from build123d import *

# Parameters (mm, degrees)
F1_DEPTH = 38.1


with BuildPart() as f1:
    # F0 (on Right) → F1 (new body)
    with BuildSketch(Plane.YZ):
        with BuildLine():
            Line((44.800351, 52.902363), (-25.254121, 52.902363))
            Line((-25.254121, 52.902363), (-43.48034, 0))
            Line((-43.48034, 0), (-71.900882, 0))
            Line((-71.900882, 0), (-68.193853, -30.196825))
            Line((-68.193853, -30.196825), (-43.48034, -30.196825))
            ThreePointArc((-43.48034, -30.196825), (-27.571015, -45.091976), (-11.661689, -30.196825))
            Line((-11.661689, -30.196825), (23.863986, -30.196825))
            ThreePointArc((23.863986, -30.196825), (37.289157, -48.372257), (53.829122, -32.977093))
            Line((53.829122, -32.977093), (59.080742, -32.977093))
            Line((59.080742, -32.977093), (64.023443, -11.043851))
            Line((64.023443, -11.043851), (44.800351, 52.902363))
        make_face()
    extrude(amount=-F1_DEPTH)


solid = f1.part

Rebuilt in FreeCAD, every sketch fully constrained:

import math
import FreeCAD as App
import Part
import Sketcher

V = App.Vector
Q = App.Units.Quantity

doc = App.newDocument("Part")
body = doc.addObject("PartDesign::Body", "Body")

sketch1 = body.newObject("Sketcher::SketchObject", "Sketch")
sketch1.AttachmentSupport = (doc.getObject("YZ_Plane"), [""])
sketch1.MapMode = "FlatFace"
sketch1.addGeometry(Part.LineSegment(V(45, 53, 0), V(-25, 53, 0)), False)
sketch1.addGeometry(Part.LineSegment(V(-25, 53, 0), V(-43, 0, 0)), False)
sketch1.addGeometry(Part.LineSegment(V(-43, 0, 0), V(-72, 0, 0)), False)
sketch1.addGeometry(Part.LineSegment(V(-72, 0, 0), V(-68, -30, 0)), False)
sketch1.addGeometry(Part.LineSegment(V(-68, -30, 0), V(-43, -30, 0)), False)
sketch1.addGeometry(Part.ArcOfCircle(Part.Circle(V(-28, -29, 0), V(0, 0, 1), 16), math.radians(-176), math.radians(-4)), False)
sketch1.addGeometry(Part.LineSegment(V(-12, -30, 0), V(24, -30, 0)), False)
sketch1.addGeometry(Part.ArcOfCircle(Part.Circle(V(39, -33, 0), V(0, 0, 1), 15), math.radians(168), math.radians(361)), False)
sketch1.addGeometry(Part.LineSegment(V(54, -33, 0), V(59, -33, 0)), False)
sketch1.addGeometry(Part.LineSegment(V(59, -33, 0), V(64, -11, 0)), False)
sketch1.addGeometry(Part.LineSegment(V(64, -11, 0), V(45, 53, 0)), False)
sketch1.addConstraint(Sketcher.Constraint("Coincident", 0, 2, 1, 1))
sketch1.addConstraint(Sketcher.Constraint("Coincident", 1, 2, 2, 1))
sketch1.addConstraint(Sketcher.Constraint("Coincident", 2, 2, 3, 1))
sketch1.addConstraint(Sketcher.Constraint("Coincident", 3, 2, 4, 1))
sketch1.addConstraint(Sketcher.Constraint("Coincident", 4, 2, 5, 1))
sketch1.addConstraint(Sketcher.Constraint("Coincident", 5, 2, 6, 1))
sketch1.addConstraint(Sketcher.Constraint("Coincident", 6, 2, 7, 1))
sketch1.addConstraint(Sketcher.Constraint("Coincident", 7, 2, 8, 1))
sketch1.addConstraint(Sketcher.Constraint("Coincident", 8, 2, 9, 1))
sketch1.addConstraint(Sketcher.Constraint("Coincident", 9, 2, 10, 1))
sketch1.addConstraint(Sketcher.Constraint("Coincident", 10, 2, 0, 1))
sketch1.addConstraint(Sketcher.Constraint("Horizontal", 0))
sketch1.addConstraint(Sketcher.Constraint("Horizontal", 2))
sketch1.addConstraint(Sketcher.Constraint("Horizontal", 4))
sketch1.addConstraint(Sketcher.Constraint("Horizontal", 6))
sketch1.addConstraint(Sketcher.Constraint("Horizontal", 8))
sketch1.addConstraint(Sketcher.Constraint("PointOnObject", 1, 2, -1))
sketch1.addConstraint(Sketcher.Constraint("Horizontal", 4, 2, 5, 2))
sketch1.addConstraint(Sketcher.Constraint("Vertical", 1, 2, 4, 2))
sketch1.addConstraint(Sketcher.Constraint("Radius", 5, 15.943852))
sketch1.addConstraint(Sketcher.Constraint("DistanceX", 5, 3, 6, 2, Q("2.025 in")))
sketch1.addConstraint(Sketcher.Constraint("Radius", 7, 15.144142))
sketch1.addConstraint(Sketcher.Constraint("DistanceX", 2, 2, 2, 1, 28.420542))
sketch1.addConstraint(Sketcher.Constraint("DistanceX", 8, 1, 8, 2, 5.25162))
sketch1.addConstraint(Sketcher.Constraint("DistanceY", 3, 2, 5, 3, 1.048701))
sketch1.addConstraint(Sketcher.Constraint("DistanceX", 8, 2, 9, 2, 4.942701))
sketch1.addConstraint(Sketcher.Constraint("Distance", 9, 22.483269))
sketch1.addConstraint(Sketcher.Constraint("Distance", 10, 66.77309))
sketch1.addConstraint(Sketcher.Constraint("DistanceX", 0, 2, 0, 1, 70.054472))
sketch1.addConstraint(Sketcher.Constraint("DistanceX", 4, 1, 4, 2, 24.713513))
sketch1.addConstraint(Sketcher.Constraint("DistanceX", 0, 2, -1, 1, 25.254121))
sketch1.addConstraint(Sketcher.Constraint("DistanceX", 1, 2, -1, 1, 43.48034))
sketch1.addConstraint(Sketcher.Constraint("DistanceY", 9, 2, -1, 1, 11.043851))
sketch1.addConstraint(Sketcher.Constraint("DistanceY", 7, 3, 5, 3, 4.144759))
sketch1.addConstraint(Sketcher.Constraint("DistanceY", 3, 2, 0, 2, 83.099188))
pad1 = body.newObject("PartDesign::Pad", "Pad")
pad1.Profile = sketch1
pad1.Length = Q("1.5 in")
pad1.Reversed = True

doc.recompute()
